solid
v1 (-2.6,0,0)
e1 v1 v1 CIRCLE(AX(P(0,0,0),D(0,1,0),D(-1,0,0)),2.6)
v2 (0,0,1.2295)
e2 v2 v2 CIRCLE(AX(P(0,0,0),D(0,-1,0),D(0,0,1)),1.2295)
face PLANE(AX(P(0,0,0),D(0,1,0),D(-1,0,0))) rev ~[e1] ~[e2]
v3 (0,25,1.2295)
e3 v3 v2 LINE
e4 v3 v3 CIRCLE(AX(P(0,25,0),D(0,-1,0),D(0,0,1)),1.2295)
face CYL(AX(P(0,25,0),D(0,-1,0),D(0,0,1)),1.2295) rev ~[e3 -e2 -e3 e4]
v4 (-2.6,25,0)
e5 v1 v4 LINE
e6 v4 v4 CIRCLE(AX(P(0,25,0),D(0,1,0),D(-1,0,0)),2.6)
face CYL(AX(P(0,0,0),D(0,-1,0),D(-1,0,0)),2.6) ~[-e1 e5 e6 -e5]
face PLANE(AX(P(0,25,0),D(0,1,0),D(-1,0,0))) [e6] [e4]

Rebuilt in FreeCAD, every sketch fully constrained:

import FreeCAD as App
import Part
import Sketcher

V = App.Vector

doc = App.newDocument("Part")
params = doc.addObject("Spreadsheet::Sheet", "Params")
for row, (alias, value) in enumerate([
    ("sketch1_diameter", "5.2 mm"),
    ("pad1_length", "25 mm"),
    ("hole_diameter", "2.459 mm"),
], start=1):
    params.set(f"A{row}", alias)
    params.set(f"B{row}", "=" + value)
    params.setAlias(f"B{row}", alias)

body = doc.addObject("PartDesign::Body", "Body")

# Sketch on XZ plane
sketch1 = body.newObject("Sketcher::SketchObject", "Sketch")
sketch1.AttachmentSupport = (doc.getObject("XZ_Plane"), [""])
sketch1.MapMode = "FlatFace"
sketch1.addGeometry(Part.Circle(V(0, 0, 0), V(0, 0, 1), 2.6), False)
sketch1.addConstraint([
    Sketcher.Constraint("Coincident", 0, 3, -1, 1),
    Sketcher.Constraint("Diameter", 0, 5.2),
])
sketch1.setExpression("Constraints[1]", "Params.sketch1_diameter")
pad1 = body.newObject("PartDesign::Pad", "Pad")
pad1.Profile = sketch1
pad1.setExpression("Length", "Params.pad1_length")
pad1.Reversed = True

# Sketch on XZ plane
sketch2 = body.newObject("Sketcher::SketchObject", "Sketch001")
sketch2.AttachmentSupport = (doc.getObject("XZ_Plane"), [""])
sketch2.MapMode = "FlatFace"
sketch2.AttachmentOffset = App.Placement(V(0, 0, -25), App.Rotation())
sketch2.addGeometry(Part.Circle(V(0, 0, 0), V(0, 0, 1), 1.2), False)
sketch2.addConstraint([
    Sketcher.Constraint("Coincident", 0, 3, -1, 1),
    Sketcher.Constraint("Diameter", 0, 2.459),
])
doc.recompute()
hole = body.newObject("PartDesign::Hole", "Hole")
hole.Profile = sketch2
hole.ThreadType = "None"
hole.setExpression("Diameter", "Params.hole_diameter")
hole.DepthType = "ThroughAll"
hole.Reversed = True

doc.recompute()
